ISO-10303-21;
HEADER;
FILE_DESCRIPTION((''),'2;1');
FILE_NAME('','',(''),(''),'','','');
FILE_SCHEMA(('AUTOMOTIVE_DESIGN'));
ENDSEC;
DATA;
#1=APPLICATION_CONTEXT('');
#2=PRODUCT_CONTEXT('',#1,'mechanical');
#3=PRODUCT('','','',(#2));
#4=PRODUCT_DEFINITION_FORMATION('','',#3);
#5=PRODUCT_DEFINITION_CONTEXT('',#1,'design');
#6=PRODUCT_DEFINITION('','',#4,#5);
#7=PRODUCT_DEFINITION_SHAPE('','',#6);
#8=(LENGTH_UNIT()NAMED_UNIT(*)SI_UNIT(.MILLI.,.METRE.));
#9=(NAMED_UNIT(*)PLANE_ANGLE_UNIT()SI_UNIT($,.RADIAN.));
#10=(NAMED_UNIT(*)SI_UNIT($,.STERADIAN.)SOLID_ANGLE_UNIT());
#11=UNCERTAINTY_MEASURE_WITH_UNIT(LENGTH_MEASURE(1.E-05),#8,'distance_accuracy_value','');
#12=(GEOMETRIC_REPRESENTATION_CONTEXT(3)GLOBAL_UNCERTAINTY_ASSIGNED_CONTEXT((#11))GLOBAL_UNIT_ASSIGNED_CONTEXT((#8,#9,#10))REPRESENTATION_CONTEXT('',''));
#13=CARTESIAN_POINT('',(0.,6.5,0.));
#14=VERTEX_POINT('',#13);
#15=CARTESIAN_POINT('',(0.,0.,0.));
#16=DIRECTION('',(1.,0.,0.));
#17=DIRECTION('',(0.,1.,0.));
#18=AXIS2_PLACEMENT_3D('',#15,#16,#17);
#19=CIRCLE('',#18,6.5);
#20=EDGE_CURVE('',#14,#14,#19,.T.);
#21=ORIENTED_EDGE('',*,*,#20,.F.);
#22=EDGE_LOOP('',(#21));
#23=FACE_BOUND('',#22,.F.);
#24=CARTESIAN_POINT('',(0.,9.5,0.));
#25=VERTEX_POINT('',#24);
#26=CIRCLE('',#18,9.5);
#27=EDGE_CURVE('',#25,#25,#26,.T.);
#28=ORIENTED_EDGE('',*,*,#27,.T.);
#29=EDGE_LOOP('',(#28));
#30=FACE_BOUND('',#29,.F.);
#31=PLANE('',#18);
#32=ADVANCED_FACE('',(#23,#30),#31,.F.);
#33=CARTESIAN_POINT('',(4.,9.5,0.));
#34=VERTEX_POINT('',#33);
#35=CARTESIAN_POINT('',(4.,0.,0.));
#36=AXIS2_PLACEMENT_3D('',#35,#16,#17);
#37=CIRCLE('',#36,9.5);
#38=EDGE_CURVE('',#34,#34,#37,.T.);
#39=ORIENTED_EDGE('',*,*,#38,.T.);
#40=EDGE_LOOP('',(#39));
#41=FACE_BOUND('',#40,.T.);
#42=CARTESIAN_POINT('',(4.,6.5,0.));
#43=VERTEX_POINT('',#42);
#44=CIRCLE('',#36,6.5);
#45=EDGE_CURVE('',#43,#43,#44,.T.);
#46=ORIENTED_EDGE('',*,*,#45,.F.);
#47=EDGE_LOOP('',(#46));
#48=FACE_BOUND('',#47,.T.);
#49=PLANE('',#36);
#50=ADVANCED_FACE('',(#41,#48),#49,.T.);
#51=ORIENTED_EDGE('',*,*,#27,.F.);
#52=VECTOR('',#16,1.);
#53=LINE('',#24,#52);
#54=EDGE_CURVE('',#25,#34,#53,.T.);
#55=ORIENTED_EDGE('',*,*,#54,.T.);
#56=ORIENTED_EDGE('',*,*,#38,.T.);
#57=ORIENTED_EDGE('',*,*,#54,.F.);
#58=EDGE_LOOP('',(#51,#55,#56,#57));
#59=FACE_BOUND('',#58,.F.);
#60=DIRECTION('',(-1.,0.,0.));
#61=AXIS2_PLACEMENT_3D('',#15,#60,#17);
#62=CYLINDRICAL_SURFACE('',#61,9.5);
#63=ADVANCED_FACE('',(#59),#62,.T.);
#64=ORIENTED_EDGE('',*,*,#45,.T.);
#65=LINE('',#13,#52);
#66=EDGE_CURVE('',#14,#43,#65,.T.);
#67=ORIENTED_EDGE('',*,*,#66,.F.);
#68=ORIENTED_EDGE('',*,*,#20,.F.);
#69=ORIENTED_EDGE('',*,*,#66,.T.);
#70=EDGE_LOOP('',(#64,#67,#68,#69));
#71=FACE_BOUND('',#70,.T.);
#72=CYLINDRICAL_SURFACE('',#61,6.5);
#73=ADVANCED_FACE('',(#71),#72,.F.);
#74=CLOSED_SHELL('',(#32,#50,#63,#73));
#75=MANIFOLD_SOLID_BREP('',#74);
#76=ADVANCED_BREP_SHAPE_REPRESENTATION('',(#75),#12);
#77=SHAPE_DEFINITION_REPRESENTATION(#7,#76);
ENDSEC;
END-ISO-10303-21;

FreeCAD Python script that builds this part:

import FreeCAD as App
import Part
import Sketcher

doc = App.newDocument("Part")
body = doc.addObject("PartDesign::Body", "Body")

# Sketch on YZ plane
sketch1 = doc.addObject("Sketcher::SketchObject", "Sketch")
body.addObject(sketch1)
sketch1.AttachmentSupport = (doc.YZ_Plane, [""])
sketch1.MapMode = "FlatFace"
sketch1.addGeometry(Part.Circle(App.Vector(0, 0, 0), App.Vector(0, 0, 1), 9.5), False)
sketch1.addGeometry(Part.Circle(App.Vector(0, 0, 0), App.Vector(0, 0, 1), 6.5), False)
sketch1.addConstraint(Sketcher.Constraint("Coincident", 0, 3, -1, 1))
sketch1.addConstraint(Sketcher.Constraint("Coincident", 1, 3, -1, 1))
sketch1.addConstraint(Sketcher.Constraint("Diameter", 0, 19.0))
sketch1.addConstraint(Sketcher.Constraint("Diameter", 1, 13.0))
pad1 = doc.addObject("PartDesign::Pad", "Pad")
body.addObject(pad1)
pad1.Profile = sketch1
pad1.Length = 4

doc.recompute()
